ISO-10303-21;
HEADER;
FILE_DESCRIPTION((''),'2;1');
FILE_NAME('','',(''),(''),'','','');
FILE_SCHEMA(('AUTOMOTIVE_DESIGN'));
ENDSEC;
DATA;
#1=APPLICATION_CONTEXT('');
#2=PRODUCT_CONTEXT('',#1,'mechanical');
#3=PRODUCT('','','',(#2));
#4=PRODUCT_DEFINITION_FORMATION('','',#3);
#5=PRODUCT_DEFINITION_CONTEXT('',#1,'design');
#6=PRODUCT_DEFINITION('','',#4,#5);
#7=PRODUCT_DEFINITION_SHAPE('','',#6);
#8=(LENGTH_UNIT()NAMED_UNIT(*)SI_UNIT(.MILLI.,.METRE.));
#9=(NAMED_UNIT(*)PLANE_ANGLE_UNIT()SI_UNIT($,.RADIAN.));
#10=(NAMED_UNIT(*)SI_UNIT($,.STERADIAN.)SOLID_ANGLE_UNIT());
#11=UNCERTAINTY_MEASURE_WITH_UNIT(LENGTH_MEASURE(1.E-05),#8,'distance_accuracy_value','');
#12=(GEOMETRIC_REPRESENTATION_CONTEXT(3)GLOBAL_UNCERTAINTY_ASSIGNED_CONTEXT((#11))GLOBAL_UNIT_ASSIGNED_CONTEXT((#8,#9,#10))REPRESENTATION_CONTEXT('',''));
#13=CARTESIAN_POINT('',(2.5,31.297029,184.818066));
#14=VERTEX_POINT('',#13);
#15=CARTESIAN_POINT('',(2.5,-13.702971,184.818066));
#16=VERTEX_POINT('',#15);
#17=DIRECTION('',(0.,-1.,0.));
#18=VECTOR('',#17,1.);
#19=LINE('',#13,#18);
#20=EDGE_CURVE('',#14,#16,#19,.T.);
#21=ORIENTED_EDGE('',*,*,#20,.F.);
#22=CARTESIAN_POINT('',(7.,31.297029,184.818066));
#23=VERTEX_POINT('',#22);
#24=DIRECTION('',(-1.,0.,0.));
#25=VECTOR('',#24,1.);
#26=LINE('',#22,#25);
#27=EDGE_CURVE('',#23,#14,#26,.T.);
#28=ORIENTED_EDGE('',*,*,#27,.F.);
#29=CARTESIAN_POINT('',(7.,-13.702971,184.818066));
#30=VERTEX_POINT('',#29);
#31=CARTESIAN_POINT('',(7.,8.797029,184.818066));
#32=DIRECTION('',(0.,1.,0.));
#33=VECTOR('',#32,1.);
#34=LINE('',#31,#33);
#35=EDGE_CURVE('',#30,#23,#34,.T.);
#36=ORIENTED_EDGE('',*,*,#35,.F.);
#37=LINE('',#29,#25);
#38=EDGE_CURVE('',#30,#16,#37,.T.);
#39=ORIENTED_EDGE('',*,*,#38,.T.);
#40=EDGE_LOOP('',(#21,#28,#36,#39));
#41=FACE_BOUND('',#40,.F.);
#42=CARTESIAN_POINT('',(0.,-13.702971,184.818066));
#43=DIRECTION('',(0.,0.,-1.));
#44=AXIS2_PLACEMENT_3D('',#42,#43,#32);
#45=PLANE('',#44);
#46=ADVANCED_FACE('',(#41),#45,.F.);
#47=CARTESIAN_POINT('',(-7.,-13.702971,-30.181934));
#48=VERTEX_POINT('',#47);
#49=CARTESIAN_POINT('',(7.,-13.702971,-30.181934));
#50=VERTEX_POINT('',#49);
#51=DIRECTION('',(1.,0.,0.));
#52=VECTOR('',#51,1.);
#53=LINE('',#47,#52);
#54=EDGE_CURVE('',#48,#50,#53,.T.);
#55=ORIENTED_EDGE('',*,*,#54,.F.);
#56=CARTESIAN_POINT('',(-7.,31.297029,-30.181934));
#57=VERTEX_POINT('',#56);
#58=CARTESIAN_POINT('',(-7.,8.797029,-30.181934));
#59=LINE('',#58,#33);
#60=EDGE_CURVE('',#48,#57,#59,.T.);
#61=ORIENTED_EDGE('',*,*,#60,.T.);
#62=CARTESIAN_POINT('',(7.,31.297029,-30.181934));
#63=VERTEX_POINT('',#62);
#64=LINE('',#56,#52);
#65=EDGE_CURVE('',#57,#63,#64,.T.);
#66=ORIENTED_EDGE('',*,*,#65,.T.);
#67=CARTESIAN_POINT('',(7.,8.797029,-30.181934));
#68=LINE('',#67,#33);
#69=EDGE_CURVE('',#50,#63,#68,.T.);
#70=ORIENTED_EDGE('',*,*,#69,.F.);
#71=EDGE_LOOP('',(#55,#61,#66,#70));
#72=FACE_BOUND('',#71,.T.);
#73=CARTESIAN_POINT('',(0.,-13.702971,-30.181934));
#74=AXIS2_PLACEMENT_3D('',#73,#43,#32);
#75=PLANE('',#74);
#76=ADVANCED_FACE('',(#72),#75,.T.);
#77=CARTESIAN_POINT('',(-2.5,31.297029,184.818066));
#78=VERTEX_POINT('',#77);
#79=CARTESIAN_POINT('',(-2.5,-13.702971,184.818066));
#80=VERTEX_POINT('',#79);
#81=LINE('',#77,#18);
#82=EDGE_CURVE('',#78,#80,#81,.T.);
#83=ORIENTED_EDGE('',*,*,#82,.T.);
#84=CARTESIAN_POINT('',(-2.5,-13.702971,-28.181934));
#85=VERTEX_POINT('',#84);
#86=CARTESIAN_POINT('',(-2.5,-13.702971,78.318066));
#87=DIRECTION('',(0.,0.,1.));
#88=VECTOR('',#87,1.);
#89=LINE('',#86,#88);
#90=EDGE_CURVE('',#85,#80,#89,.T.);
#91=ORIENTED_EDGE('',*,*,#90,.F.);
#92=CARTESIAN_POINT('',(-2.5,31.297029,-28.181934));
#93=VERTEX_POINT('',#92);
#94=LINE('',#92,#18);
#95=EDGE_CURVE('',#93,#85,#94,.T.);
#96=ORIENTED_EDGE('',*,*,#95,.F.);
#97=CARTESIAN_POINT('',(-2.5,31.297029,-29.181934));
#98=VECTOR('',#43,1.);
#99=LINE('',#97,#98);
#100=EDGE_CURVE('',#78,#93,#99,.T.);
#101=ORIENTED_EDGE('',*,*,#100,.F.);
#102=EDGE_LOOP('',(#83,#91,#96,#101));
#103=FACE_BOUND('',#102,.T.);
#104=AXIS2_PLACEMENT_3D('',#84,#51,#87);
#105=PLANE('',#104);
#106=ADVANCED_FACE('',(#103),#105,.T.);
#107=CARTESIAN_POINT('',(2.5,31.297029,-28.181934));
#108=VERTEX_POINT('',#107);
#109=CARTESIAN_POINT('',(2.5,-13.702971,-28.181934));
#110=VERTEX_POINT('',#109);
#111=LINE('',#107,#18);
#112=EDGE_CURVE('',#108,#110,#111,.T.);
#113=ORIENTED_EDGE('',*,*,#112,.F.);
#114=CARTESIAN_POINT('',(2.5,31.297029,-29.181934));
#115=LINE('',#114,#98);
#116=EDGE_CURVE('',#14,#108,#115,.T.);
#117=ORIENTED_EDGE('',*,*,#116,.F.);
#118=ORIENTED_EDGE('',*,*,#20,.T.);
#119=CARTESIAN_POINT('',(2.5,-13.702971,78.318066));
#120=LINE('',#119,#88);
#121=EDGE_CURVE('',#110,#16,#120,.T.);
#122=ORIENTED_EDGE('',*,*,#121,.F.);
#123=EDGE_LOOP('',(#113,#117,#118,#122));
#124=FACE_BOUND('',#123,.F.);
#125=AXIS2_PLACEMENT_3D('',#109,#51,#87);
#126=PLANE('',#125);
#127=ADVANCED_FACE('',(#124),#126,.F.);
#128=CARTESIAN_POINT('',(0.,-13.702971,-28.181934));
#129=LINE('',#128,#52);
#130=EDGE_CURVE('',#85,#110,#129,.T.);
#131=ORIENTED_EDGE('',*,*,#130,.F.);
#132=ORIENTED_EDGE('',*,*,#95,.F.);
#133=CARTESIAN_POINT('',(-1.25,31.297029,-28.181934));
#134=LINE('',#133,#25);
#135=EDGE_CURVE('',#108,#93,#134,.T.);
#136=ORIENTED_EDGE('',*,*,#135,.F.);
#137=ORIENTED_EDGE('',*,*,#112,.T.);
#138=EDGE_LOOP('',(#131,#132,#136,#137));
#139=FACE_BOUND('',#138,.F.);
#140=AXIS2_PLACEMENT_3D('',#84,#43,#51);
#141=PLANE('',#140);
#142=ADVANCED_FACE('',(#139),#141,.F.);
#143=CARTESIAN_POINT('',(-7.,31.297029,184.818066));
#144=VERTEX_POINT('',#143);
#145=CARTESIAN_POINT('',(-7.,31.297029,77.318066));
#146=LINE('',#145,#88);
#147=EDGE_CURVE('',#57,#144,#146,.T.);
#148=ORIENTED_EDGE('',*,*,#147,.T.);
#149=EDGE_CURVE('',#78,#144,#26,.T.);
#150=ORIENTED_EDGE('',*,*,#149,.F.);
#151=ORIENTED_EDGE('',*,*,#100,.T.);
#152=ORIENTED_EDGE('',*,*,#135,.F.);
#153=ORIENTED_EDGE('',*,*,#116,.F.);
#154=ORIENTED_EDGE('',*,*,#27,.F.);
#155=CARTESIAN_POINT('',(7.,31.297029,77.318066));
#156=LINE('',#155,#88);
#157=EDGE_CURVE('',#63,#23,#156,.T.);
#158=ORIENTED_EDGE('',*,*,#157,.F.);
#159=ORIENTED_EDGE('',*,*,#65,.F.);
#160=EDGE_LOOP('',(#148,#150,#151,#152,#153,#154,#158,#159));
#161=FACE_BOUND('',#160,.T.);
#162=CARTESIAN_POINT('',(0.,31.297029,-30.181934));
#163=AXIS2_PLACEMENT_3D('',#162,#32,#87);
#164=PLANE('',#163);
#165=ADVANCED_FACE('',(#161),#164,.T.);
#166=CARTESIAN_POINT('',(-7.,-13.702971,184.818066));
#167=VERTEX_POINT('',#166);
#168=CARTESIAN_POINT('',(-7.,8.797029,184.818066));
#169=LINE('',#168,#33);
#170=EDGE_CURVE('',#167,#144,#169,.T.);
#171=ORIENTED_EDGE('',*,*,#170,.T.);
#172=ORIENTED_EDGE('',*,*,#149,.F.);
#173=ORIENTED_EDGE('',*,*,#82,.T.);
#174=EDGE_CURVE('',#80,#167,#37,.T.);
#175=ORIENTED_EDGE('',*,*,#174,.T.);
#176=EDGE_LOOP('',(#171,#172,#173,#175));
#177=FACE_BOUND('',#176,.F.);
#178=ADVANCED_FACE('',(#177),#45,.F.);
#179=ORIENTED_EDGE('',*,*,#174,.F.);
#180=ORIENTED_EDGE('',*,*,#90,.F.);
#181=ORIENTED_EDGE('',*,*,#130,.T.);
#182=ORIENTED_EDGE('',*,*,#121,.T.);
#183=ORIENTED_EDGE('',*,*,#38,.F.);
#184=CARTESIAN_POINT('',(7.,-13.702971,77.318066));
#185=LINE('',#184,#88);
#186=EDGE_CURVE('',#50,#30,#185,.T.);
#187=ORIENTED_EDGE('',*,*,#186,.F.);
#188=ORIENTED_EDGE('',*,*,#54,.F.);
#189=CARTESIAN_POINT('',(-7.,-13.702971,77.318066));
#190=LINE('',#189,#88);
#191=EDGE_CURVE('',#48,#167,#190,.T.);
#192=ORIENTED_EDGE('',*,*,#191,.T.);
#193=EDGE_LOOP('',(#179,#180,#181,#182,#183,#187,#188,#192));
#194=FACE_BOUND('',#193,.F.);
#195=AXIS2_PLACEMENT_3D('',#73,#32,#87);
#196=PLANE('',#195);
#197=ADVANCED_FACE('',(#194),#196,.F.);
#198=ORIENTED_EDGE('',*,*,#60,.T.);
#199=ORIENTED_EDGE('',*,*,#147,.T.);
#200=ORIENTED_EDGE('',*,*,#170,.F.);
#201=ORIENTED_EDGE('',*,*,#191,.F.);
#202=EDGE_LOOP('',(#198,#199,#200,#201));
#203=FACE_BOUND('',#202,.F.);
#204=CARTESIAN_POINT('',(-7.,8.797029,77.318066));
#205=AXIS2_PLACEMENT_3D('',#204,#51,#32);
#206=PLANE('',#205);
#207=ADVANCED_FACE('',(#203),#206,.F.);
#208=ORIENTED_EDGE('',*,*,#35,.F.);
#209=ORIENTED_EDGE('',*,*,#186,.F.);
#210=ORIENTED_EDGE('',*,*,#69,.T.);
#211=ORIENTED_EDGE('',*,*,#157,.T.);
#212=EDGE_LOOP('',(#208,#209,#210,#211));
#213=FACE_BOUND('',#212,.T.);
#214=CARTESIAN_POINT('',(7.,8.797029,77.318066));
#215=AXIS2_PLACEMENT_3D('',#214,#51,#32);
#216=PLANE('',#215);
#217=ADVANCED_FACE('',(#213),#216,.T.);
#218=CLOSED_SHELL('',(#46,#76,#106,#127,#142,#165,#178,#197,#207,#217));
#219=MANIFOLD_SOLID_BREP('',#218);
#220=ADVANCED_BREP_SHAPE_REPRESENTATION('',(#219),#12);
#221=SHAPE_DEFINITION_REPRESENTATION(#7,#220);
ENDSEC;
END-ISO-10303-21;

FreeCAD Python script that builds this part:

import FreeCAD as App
import Part
import Sketcher
from FreeCAD import Vector
Q = App.Units.Quantity


def add_polygon(sketch, points):
    """Adds a closed chain of lines whose ends are joined by coincident constraints."""
    first, n = sketch.GeometryCount, len(points)
    for a, b in zip(points, points[1:] + points[:1]):
        sketch.addGeometry(Part.LineSegment(App.Vector(*a, 0), App.Vector(*b, 0)), False)
    for i in range(n):
        sketch.addConstraint(Sketcher.Constraint("Coincident", first + i, 2, first + (i + 1) % n, 1))

doc = App.newDocument("Part")
body = doc.addObject("PartDesign::Body", "Body")

# Sketch on YZ plane
sketch1 = body.newObject("Sketcher::SketchObject", "Sketch")
sketch1.AttachmentSupport = (doc.getObject("YZ_Plane"), [""])
sketch1.MapMode = "FlatFace"
add_polygon(sketch1, [(-14, 185), (-14, -30), (31, -30), (31, 185)])  # lines 0-3
sketch1.addConstraint(Sketcher.Constraint("Vertical", 0))
sketch1.addConstraint(Sketcher.Constraint("Horizontal", 1))
sketch1.addConstraint(Sketcher.Constraint("Vertical", 2))
sketch1.addConstraint(Sketcher.Constraint("Horizontal", 3))
sketch1.addConstraint(Sketcher.Constraint("DistanceX", 1, 1, 1, 2, Q("45 mm")))
sketch1.addConstraint(Sketcher.Constraint("DistanceY", 0, 2, 0, 1, Q("215 mm")))
sketch1.addConstraint(Sketcher.Constraint("DistanceX", 0, 2, -1, 1, Q("13.702971 mm")))
sketch1.addConstraint(Sketcher.Constraint("DistanceY", 0, 2, -1, 1, Q("30.181934 mm")))
pad1 = body.newObject("PartDesign::Pad", "Pad")
pad1.Profile = sketch1
pad1.Type = "TwoLengths"
pad1.Length = 7
pad1.Length2 = 7

# Sketch on XZ plane
sketch2 = body.newObject("Sketcher::SketchObject", "Sketch001")
sketch2.AttachmentSupport = (doc.getObject("XZ_Plane"), [""])
sketch2.MapMode = "FlatFace"
sketch2.AttachmentOffset = App.Placement(Vector(0, 0, 13.702971), App.Rotation())
add_polygon(sketch2, [(-2, 185), (-2, -28), (2, -28), (2, 185)])  # lines 0-3
sketch2.addConstraint(Sketcher.Constraint("Vertical", 0))
sketch2.addConstraint(Sketcher.Constraint("Horizontal", 1))
sketch2.addConstraint(Sketcher.Constraint("Vertical", 2))
sketch2.addConstraint(Sketcher.Constraint("Horizontal", 3))
sketch2.addConstraint(Sketcher.Constraint("DistanceX", 1, 1, 1, 2, Q("5 mm")))
sketch2.addConstraint(Sketcher.Constraint("DistanceY", 0, 2, 0, 1, Q("213 mm")))
sketch2.addConstraint(Sketcher.Constraint("DistanceX", 0, 2, -1, 1, Q("2.5 mm")))
sketch2.addConstraint(Sketcher.Constraint("DistanceY", 0, 2, -1, 1, Q("28.181934 mm")))
pocket1 = body.newObject("PartDesign::Pocket", "Pocket")
pocket1.Profile = sketch2
pocket1.Length = 70
pocket2 = body.newObject("PartDesign::Pocket", "Pocket001")
pocket2.Profile = sketch2
pocket2.Length = 25

doc.recompute()
